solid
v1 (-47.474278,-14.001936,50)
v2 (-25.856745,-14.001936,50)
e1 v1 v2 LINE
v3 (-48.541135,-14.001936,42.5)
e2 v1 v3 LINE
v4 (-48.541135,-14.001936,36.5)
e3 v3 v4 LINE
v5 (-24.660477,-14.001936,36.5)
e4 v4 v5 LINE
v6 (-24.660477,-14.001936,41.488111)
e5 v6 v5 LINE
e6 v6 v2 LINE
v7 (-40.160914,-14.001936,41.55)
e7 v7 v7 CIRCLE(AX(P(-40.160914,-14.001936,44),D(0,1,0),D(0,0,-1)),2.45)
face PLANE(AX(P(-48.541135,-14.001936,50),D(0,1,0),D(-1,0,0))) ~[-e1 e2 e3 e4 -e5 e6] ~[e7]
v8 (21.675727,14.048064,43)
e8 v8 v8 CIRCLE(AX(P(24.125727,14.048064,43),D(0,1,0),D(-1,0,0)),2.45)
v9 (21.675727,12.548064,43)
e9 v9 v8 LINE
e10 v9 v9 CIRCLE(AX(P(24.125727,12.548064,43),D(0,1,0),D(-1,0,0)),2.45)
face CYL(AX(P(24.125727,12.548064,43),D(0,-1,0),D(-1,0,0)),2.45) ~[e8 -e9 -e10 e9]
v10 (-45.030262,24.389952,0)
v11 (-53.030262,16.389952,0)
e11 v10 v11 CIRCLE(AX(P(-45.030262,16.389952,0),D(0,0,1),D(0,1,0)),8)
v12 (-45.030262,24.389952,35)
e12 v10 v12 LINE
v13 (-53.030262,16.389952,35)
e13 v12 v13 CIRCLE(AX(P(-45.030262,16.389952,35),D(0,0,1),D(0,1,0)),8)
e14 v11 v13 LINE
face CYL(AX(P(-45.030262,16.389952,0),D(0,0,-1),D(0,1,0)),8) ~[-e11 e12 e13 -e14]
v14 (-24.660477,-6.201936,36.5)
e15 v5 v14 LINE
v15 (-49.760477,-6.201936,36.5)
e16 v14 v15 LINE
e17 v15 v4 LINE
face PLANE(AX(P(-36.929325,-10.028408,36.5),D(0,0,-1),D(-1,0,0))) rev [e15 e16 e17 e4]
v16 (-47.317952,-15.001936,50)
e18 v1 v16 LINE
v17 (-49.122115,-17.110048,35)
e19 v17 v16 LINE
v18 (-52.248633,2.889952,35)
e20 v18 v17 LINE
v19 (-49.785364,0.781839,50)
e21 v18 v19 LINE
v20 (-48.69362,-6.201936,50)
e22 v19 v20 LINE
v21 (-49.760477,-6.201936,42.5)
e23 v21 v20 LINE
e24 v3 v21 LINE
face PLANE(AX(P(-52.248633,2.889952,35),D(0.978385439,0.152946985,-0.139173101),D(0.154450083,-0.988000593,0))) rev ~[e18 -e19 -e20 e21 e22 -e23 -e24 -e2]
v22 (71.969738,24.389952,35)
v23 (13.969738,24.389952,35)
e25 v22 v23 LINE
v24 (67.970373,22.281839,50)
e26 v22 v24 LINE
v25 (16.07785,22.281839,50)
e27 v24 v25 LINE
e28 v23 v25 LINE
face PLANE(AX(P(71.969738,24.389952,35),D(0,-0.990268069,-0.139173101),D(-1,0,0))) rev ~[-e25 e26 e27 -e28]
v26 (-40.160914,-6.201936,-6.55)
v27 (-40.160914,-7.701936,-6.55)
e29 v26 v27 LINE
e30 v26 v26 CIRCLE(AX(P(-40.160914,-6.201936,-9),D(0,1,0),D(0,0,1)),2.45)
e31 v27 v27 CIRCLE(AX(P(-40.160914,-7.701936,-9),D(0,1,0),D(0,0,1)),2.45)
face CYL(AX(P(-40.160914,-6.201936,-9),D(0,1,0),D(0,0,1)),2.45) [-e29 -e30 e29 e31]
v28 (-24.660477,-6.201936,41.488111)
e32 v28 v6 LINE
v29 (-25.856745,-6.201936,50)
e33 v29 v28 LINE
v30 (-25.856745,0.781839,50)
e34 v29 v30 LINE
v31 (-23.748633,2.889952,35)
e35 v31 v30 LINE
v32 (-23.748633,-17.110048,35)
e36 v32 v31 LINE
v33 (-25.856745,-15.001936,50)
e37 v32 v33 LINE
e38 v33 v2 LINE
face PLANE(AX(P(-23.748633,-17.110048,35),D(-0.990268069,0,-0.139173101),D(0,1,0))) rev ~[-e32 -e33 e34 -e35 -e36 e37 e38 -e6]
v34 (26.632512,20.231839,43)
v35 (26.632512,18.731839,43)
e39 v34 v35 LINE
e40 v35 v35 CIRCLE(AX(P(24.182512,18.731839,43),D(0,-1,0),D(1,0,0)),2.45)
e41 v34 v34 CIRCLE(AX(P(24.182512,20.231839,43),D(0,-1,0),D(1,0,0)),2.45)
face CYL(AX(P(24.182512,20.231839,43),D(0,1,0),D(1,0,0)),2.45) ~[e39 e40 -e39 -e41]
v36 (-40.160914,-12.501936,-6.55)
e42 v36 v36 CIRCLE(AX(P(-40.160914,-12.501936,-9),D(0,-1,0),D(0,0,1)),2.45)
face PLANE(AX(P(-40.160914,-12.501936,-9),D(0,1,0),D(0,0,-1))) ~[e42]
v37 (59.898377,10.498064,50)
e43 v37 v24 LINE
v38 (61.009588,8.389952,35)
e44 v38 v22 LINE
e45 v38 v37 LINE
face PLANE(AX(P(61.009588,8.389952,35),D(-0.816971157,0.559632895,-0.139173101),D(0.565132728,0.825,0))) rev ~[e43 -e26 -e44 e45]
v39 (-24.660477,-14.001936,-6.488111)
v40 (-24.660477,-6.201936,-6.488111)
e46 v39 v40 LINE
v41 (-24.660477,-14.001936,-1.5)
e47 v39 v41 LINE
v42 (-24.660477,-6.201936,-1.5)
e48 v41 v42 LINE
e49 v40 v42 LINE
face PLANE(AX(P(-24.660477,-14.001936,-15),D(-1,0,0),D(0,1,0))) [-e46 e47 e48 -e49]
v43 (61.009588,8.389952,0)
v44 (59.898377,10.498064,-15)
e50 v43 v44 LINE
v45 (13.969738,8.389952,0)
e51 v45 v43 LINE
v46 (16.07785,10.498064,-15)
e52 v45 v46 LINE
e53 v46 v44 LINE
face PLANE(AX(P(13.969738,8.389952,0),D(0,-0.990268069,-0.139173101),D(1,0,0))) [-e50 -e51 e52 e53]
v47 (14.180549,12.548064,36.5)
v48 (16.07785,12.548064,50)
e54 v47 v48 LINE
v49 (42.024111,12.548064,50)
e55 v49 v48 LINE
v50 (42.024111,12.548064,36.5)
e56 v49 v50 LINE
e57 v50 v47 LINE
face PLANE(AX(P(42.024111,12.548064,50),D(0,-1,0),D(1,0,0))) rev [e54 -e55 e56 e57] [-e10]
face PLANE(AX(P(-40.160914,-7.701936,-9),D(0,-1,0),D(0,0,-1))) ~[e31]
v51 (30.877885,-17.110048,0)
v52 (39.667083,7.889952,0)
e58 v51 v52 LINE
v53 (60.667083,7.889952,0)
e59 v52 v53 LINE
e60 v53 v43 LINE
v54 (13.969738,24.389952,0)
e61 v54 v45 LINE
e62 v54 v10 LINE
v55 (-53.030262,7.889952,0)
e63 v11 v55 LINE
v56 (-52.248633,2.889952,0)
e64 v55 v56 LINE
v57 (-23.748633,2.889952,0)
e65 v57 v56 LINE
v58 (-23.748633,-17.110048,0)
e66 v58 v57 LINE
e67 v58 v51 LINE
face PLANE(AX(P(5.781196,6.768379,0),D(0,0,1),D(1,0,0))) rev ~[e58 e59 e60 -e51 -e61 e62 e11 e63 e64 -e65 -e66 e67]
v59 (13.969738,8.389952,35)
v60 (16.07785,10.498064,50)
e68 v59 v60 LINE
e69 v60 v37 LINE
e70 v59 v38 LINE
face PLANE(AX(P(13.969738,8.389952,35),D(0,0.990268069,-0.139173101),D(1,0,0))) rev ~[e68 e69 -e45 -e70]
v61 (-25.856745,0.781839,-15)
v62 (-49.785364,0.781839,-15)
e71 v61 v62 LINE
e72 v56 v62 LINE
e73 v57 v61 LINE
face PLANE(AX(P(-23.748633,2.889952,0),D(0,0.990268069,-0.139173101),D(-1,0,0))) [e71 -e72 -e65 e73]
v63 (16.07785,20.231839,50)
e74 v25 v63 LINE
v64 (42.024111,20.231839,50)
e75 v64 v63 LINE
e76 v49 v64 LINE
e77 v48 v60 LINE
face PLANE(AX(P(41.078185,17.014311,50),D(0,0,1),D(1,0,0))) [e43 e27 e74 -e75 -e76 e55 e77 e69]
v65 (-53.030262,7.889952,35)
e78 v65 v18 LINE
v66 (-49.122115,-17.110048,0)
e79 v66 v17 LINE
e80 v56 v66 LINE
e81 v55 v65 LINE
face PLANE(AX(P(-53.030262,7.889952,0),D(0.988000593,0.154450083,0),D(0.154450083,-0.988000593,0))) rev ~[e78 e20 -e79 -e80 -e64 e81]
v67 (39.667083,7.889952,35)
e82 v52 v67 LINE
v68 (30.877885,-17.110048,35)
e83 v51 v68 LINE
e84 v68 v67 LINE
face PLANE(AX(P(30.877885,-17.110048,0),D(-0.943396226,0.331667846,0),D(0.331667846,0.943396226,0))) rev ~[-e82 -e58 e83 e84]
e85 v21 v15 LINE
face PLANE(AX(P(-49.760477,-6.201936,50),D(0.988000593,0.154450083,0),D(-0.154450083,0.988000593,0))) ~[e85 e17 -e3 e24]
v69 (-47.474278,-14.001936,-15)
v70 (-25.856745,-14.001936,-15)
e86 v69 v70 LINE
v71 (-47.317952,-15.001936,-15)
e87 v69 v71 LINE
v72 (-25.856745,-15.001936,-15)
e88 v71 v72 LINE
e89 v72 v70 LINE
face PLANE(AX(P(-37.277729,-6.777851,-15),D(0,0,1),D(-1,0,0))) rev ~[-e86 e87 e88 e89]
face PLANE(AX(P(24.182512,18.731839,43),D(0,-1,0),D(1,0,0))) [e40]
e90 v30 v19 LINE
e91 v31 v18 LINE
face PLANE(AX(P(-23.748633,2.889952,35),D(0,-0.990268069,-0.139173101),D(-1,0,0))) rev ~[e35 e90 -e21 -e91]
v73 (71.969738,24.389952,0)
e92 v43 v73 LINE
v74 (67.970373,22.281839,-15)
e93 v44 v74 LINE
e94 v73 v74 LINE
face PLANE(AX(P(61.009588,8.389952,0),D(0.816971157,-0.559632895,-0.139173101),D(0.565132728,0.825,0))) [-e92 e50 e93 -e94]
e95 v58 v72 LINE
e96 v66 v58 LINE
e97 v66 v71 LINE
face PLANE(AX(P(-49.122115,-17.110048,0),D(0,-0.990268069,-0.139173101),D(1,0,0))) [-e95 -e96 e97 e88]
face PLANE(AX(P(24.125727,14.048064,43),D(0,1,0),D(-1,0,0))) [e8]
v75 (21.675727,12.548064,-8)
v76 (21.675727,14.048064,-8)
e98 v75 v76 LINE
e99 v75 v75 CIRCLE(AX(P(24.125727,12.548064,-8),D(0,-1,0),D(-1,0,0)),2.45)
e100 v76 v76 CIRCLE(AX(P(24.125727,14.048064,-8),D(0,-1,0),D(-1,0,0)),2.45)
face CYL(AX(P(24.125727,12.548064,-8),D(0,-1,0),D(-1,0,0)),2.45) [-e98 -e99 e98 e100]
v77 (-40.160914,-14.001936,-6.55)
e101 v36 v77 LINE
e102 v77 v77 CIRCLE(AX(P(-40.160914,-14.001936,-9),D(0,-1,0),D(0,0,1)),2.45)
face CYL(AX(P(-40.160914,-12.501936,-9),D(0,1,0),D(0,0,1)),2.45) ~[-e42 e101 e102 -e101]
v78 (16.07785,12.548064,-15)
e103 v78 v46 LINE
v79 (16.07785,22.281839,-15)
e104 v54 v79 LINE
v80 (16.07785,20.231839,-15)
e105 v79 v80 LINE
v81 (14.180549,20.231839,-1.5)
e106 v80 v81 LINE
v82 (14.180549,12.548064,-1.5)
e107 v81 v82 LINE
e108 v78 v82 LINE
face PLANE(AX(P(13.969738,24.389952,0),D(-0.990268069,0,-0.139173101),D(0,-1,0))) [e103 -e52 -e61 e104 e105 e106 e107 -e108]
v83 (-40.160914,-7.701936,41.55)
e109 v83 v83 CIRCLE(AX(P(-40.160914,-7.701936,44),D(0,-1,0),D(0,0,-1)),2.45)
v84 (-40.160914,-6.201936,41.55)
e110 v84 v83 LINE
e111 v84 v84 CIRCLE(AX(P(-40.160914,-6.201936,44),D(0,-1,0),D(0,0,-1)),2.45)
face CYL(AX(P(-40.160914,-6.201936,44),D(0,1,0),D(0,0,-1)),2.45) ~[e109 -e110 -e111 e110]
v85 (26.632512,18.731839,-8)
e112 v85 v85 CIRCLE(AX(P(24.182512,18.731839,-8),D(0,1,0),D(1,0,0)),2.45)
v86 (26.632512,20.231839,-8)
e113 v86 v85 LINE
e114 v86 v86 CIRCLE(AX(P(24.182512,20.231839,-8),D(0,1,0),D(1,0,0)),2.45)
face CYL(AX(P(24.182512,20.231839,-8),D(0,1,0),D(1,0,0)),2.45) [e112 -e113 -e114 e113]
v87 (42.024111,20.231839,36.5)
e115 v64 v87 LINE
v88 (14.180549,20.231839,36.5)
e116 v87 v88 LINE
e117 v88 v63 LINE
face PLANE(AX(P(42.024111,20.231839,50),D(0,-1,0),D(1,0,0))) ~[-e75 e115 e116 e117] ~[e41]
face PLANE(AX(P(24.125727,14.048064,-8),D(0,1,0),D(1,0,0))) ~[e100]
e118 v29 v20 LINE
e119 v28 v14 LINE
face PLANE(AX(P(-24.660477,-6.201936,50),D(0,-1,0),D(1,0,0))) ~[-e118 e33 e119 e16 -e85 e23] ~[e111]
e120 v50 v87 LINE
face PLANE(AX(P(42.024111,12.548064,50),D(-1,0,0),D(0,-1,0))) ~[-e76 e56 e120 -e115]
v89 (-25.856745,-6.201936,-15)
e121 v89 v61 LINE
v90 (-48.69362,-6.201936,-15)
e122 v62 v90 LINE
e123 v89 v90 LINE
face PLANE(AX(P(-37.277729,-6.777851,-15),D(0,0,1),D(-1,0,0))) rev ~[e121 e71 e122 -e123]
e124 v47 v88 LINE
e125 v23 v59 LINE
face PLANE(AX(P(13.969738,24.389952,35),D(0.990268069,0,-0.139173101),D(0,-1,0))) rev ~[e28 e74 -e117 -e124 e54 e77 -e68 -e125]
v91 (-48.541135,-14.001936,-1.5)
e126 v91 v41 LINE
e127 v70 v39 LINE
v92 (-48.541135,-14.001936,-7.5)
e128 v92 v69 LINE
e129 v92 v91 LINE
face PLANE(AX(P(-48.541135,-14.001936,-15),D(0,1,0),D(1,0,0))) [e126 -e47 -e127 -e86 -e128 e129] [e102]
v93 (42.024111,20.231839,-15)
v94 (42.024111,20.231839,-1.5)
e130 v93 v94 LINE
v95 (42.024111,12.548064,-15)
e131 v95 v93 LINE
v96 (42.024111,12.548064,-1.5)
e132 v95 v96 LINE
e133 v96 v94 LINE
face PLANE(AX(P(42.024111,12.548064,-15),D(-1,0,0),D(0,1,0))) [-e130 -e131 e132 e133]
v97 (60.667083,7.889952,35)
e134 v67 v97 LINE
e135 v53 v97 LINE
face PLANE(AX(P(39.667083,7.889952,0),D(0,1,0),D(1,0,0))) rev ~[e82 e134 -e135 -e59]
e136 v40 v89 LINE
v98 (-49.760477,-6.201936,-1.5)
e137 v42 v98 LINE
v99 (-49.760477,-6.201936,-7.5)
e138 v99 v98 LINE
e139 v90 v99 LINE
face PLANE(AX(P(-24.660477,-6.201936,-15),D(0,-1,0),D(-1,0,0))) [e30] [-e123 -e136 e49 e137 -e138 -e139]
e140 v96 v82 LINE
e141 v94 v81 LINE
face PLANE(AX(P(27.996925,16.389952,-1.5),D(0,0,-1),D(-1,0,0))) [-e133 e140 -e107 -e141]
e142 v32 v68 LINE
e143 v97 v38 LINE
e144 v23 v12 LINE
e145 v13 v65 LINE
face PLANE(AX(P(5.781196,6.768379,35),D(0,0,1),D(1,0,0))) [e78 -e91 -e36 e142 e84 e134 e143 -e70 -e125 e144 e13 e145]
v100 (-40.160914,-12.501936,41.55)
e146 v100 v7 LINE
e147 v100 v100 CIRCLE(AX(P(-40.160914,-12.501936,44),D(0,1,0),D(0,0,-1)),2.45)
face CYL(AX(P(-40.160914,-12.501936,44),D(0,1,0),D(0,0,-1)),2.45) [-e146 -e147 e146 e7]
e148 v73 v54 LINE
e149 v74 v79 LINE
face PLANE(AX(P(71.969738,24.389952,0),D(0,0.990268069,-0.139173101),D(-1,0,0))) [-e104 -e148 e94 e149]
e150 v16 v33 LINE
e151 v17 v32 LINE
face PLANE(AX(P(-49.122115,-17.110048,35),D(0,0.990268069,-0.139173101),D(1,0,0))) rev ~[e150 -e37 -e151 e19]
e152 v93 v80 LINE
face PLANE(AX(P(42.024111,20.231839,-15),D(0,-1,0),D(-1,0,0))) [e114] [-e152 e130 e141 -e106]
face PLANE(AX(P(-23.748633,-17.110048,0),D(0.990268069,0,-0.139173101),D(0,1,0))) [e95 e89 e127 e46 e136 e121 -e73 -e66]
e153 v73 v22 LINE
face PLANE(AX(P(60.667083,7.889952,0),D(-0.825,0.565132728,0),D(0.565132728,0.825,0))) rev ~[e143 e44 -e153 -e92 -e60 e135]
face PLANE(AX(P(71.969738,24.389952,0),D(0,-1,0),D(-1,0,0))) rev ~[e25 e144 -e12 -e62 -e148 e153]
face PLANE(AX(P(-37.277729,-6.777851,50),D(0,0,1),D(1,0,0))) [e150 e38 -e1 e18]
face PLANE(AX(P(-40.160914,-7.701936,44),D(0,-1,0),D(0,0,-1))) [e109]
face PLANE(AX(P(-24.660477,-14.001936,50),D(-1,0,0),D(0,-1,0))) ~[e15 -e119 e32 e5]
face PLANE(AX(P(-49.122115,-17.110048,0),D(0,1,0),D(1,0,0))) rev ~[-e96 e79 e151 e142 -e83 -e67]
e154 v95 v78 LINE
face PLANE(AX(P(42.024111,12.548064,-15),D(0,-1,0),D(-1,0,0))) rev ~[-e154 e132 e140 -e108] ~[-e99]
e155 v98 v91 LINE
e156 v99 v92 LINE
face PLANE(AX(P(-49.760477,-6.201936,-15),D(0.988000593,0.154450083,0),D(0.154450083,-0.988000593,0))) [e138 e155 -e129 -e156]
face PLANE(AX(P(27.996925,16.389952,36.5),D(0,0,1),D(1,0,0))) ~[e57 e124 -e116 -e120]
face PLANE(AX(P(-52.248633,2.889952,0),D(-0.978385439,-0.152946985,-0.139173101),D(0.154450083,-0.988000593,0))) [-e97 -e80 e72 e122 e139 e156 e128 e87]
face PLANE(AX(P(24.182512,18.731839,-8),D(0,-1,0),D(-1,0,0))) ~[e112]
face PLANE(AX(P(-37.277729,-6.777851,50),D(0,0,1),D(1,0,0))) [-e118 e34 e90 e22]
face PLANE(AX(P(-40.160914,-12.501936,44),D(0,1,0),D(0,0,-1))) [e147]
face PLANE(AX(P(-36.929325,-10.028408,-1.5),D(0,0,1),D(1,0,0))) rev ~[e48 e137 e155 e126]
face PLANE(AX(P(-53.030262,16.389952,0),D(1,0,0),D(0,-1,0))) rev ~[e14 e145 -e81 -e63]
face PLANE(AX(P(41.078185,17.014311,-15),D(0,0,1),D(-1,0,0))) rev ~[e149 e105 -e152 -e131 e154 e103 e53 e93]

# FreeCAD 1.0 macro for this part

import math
import FreeCAD as App
import Part
import Sketcher

V = App.Vector


def faces_at(feature, points):
    """Names of the faces that lie closest to the given points."""
    faces = feature.Shape.Faces
    near = lambda p: min(range(len(faces)), key=lambda i: faces[i].distToShape(Part.Vertex(*p))[0])
    return sorted({f"Face{near(p) + 1}" for p in points})

doc = App.newDocument("Part")
params = doc.addObject("Spreadsheet::Sheet", "Params")
for row, (alias, value) in enumerate([
    ("sketch1_radius", "8 mm"),
    ("sketch1_width", "21 mm"),
    ("sketch1_width2", "117 mm"),
    ("sketch1_width3", "80 mm"),
    ("sketch1_length", "20 mm"),
    ("pad1_length", "35 mm"),
    ("sketch2_height", "20 mm"),
    ("sketch2_width", "28.5 mm"),
    ("pad2_length", "15 mm"),
    ("draft_angle", "8 deg"),
    ("sketch3_width", "58 mm"),
    ("sketch3_height", "16 mm"),
    ("pad3_length", "15 mm"),
    ("draft2_angle", "8 deg"),
    ("sketch4_height", "20 mm"),
    ("sketch4_width", "28.5 mm"),
    ("pad4_length", "15 mm"),
    ("draft3_angle", "8 deg"),
    ("sketch5_width", "58 mm"),
    ("sketch5_height", "16 mm"),
    ("pad5_length", "15 mm"),
    ("draft4_angle", "8 deg"),
    ("sketch6_width", "58 mm"),
    ("sketch6_height", "16 mm"),
    ("pad6_length", "15 mm"),
    ("draft5_angle", "8 deg"),
    ("sketch7_width", "25.1 mm"),
    ("sketch7_height", "7.8 mm"),
    ("pocket1_length", "13.5 mm"),
    ("sketch8_diameter", "4.9 mm"),
    ("pad7_length", "1.5 mm"),
    ("sketch9_diameter", "4.9 mm"),
    ("pad8_length", "1.5 mm"),
    ("sketch10_diameter", "4.9 mm"),
    ("pad9_length", "1.5 mm"),
    ("sketch11_diameter", "4.9 mm"),
    ("pad10_length", "1.5 mm"),
], start=1):
    params.set(f"A{row}", alias)
    params.set(f"B{row}", "=" + value)
    params.setAlias(f"B{row}", alias)

body = doc.addObject("PartDesign::Body", "Body")

sketch1 = body.newObject("Sketcher::SketchObject", "Sketch")
sketch1.AttachmentSupport = (doc.getObject("XY_Plane"), [""])
sketch1.MapMode = "FlatFace"
sketch1.addGeometry([
    Part.LineSegment(V(31, -17, 0), V(40, 8, 0)),
    Part.LineSegment(V(40, 8, 0), V(61, 8, 0)),
    Part.LineSegment(V(61, 8, 0), V(72, 24, 0)),
    Part.LineSegment(V(72, 24, 0), V(-45, 24, 0)),
    Part.ArcOfCircle(Part.Circle(V(-45, 16, 0), V(0, 0, 1), 8), math.radians(90), math.radians(180)),
    Part.LineSegment(V(-53, 16, 0), V(-53, 8, 0)),
    Part.LineSegment(V(-53, 8, 0), V(-49, -17, 0)),
    Part.LineSegment(V(-49, -17, 0), V(31, -17, 0)),
], False)
sketch1.addConstraint([
    Sketcher.Constraint("Coincident", 0, 2, 1, 1),
    Sketcher.Constraint("Coincident", 1, 2, 2, 1),
    Sketcher.Constraint("Coincident", 2, 2, 3, 1),
    Sketcher.Constraint("Tangent", 3, 2, 4, 1),
    Sketcher.Constraint("Tangent", 4, 2, 5, 1),
    Sketcher.Constraint("Coincident", 5, 2, 6, 1),
    Sketcher.Constraint("Coincident", 6, 2, 7, 1),
    Sketcher.Constraint("Coincident", 7, 2, 0, 1),
    Sketcher.Constraint("Horizontal", 1),
    Sketcher.Constraint("Horizontal", 3),
    Sketcher.Constraint("Vertical", 5),
    Sketcher.Constraint("Horizontal", 7),
    Sketcher.Constraint("Horizontal", 1, 2, 5, 2),
    Sketcher.Constraint("Radius", 4, 8.0),
    Sketcher.Constraint("DistanceX", 1, 1, 1, 2, 21.0),
    Sketcher.Constraint("DistanceX", 3, 2, 3, 1, 117.0),
    Sketcher.Constraint("DistanceX", 7, 1, 7, 2, 80.0),
    Sketcher.Constraint("Distance", 2, 20.0),
    Sketcher.Constraint("DistanceY", 5, 2, 5, 1, 8.5),
    Sketcher.Constraint("DistanceY", 6, 2, 5, 2, 25.0),
    Sketcher.Constraint("Distance", 0, 26.5),
    Sketcher.Constraint("DistanceY", -1, 1, 4, 3, 16.389952),
    Sketcher.Constraint("DistanceX", 4, 3, -1, 1, 45.030262),
])
sketch1.setExpression("Constraints[13]", "Params.sketch1_radius")
sketch1.setExpression("Constraints[14]", "Params.sketch1_width")
sketch1.setExpression("Constraints[15]", "Params.sketch1_width2")
sketch1.setExpression("Constraints[16]", "Params.sketch1_width3")
sketch1.setExpression("Constraints[17]", "Params.sketch1_length")
pad1 = body.newObject("PartDesign::Pad", "Pad")
pad1.Profile = sketch1
pad1.setExpression("Length", "Params.pad1_length")
body2 = doc.addObject("PartDesign::Body", "Body001")

sketch2 = body2.newObject("Sketcher::SketchObject", "Sketch001")
sketch2.AttachmentSupport = (doc.getObject("XY_Plane001"), [""])
sketch2.MapMode = "FlatFace"
sketch2.AttachmentOffset = App.Placement(V(0, 0, 35), App.Rotation())
sketch2.addGeometry([
    Part.LineSegment(V(-49, -17, 0), V(-24, -17, 0)),
    Part.LineSegment(V(-24, -17, 0), V(-24, 3, 0)),
    Part.LineSegment(V(-24, 3, 0), V(-52, 3, 0)),
    Part.LineSegment(V(-52, 3, 0), V(-49, -17, 0)),
], False)
sketch2.addConstraint([
    Sketcher.Constraint("Coincident", 0, 2, 1, 1),
    Sketcher.Constraint("Coincident", 1, 2, 2, 1),
    Sketcher.Constraint("Coincident", 2, 2, 3, 1),
    Sketcher.Constraint("Coincident", 3, 2, 0, 1),
    Sketcher.Constraint("Horizontal", 0),
    Sketcher.Constraint("Vertical", 1),
    Sketcher.Constraint("Horizontal", 2),
    Sketcher.Constraint("DistanceY", 1, 1, 1, 2, 20.0),
    Sketcher.Constraint("DistanceX", 2, 2, 2, 1, 28.5),
    Sketcher.Constraint("DistanceX", 0, 1, 0, 2, 25.373482),
    Sketcher.Constraint("DistanceY", 0, 2, -1, 1, 17.110048),
    Sketcher.Constraint("DistanceX", 0, 2, -1, 1, 23.748633),
])
sketch2.setExpression("Constraints[7]", "Params.sketch2_height")
sketch2.setExpression("Constraints[8]", "Params.sketch2_width")
pad2 = body2.newObject("PartDesign::Pad", "Pad001")
pad2.Profile = sketch2
pad2.setExpression("Length", "Params.pad2_length")
doc.recompute()

datumplane = body2.newObject("PartDesign::Plane", "DatumPlane")
datumplane.AttachmentSupport = (doc.getObject("XY_Plane001"), [""])
datumplane.MapMode = "FlatFace"
datumplane.AttachmentOffset = App.Placement(V(0, 0, 35), App.Rotation())
draft = body2.newObject("PartDesign::Draft", "Draft")
draft.Base = (pad2, faces_at(pad2, [
    (-36.435, -17.11, 42.5),
    (-23.749, -7.11, 42.5),
    (-37.999, 2.89, 42.5),
    (-50.685, -7.11, 42.5),
]))
draft.NeutralPlane = (datumplane, [""])
draft.setExpression("Angle", "Params.draft_angle")
draft.Reversed = False
doc.recompute()

boolean = body.newObject("PartDesign::Boolean", "Boolean")
boolean.Type = "Fuse"
boolean.addObjects([body2])
body3 = doc.addObject("PartDesign::Body", "Body002")

sketch3 = body3.newObject("Sketcher::SketchObject", "Sketch002")
sketch3.AttachmentSupport = (doc.getObject("XY_Plane002"), [""])
sketch3.MapMode = "FlatFace"
sketch3.AttachmentOffset = App.Placement(V(0, 0, 35), App.Rotation())
sketch3.addGeometry([
    Part.LineSegment(V(72, 24, 0), V(14, 24, 0)),
    Part.LineSegment(V(14, 24, 0), V(14, 8, 0)),
    Part.LineSegment(V(14, 8, 0), V(61, 8, 0)),
    Part.LineSegment(V(61, 8, 0), V(72, 24, 0)),
], False)
sketch3.addConstraint([
    Sketcher.Constraint("Coincident", 0, 2, 1, 1),
    Sketcher.Constraint("Coincident", 1, 2, 2, 1),
    Sketcher.Constraint("Coincident", 2, 2, 3, 1),
    Sketcher.Constraint("Coincident", 3, 2, 0, 1),
    Sketcher.Constraint("Horizontal", 0),
    Sketcher.Constraint("Vertical", 1),
    Sketcher.Constraint("Horizontal", 2),
    Sketcher.Constraint("DistanceX", 0, 2, 0, 1, 58.0),
    Sketcher.Constraint("DistanceY", 1, 2, 1, 1, 16.0),
    Sketcher.Constraint("DistanceX", 2, 1, 2, 2, 47.03985),
    Sketcher.Constraint("DistanceY", -1, 1, 0, 2, 24.389952),
    Sketcher.Constraint("DistanceX", -1, 1, 0, 2, 13.969738),
])
sketch3.setExpression("Constraints[7]", "Params.sketch3_width")
sketch3.setExpression("Constraints[8]", "Params.sketch3_height")
pad3 = body3.newObject("PartDesign::Pad", "Pad002")
pad3.Profile = sketch3
pad3.setExpression("Length", "Params.pad3_length")
doc.recompute()

datumplane2 = body3.newObject("PartDesign::Plane", "DatumPlane001")
datumplane2.AttachmentSupport = (doc.getObject("XY_Plane002"), [""])
datumplane2.MapMode = "FlatFace"
datumplane2.AttachmentOffset = App.Placement(V(0, 0, 35), App.Rotation())
draft2 = body3.newObject("PartDesign::Draft", "Draft001")
draft2.Base = (pad3, faces_at(pad3, [
    (42.97, 24.39, 42.5),
    (13.97, 16.39, 42.5),
    (37.49, 8.39, 42.5),
    (66.49, 16.39, 42.5),
]))
draft2.NeutralPlane = (datumplane2, [""])
draft2.setExpression("Angle", "Params.draft2_angle")
draft2.Reversed = False
doc.recompute()

boolean2 = body.newObject("PartDesign::Boolean", "Boolean001")
boolean2.Type = "Fuse"
boolean2.addObjects([body3])
body4 = doc.addObject("PartDesign::Body", "Body003")

sketch4 = body4.newObject("Sketcher::SketchObject", "Sketch003")
sketch4.AttachmentSupport = (doc.getObject("XY_Plane003"), [""])
sketch4.MapMode = "FlatFace"
sketch4.addGeometry([
    Part.LineSegment(V(-24, -17, 0), V(-49, -17, 0)),
    Part.LineSegment(V(-49, -17, 0), V(-52, 3, 0)),
    Part.LineSegment(V(-52, 3, 0), V(-24, 3, 0)),
    Part.LineSegment(V(-24, 3, 0), V(-24, -17, 0)),
], False)
sketch4.addConstraint([
    Sketcher.Constraint("Coincident", 0, 2, 1, 1),
    Sketcher.Constraint("Coincident", 1, 2, 2, 1),
    Sketcher.Constraint("Coincident", 2, 2, 3, 1),
    Sketcher.Constraint("Coincident", 3, 2, 0, 1),
    Sketcher.Constraint("Horizontal", 0),
    Sketcher.Constraint("Horizontal", 2),
    Sketcher.Constraint("Vertical", 3),
    Sketcher.Constraint("DistanceY", 3, 2, 3, 1, 20.0),
    Sketcher.Constraint("DistanceX", 2, 1, 2, 2, 28.5),
    Sketcher.Constraint("DistanceX", 0, 2, 0, 1, 25.373482),
    Sketcher.Constraint("DistanceY", 0, 2, -1, 1, 17.110048),
    Sketcher.Constraint("DistanceX", 0, 2, -1, 1, 49.122115),
])
sketch4.setExpression("Constraints[7]", "Params.sketch4_height")
sketch4.setExpression("Constraints[8]", "Params.sketch4_width")
pad4 = body4.newObject("PartDesign::Pad", "Pad003")
pad4.Profile = sketch4
pad4.setExpression("Length", "Params.pad4_length")
pad4.Reversed = True
doc.recompute()

draft3 = body4.newObject("PartDesign::Draft", "Draft002")
draft3.Base = (pad4, faces_at(pad4, [
    (-36.435, -17.11, -7.5),
    (-23.749, -7.11, -7.5),
    (-37.999, 2.89, -7.5),
    (-50.685, -7.11, -7.5),
]))
draft3.NeutralPlane = (doc.getObject("XY_Plane003"), [""])
draft3.setExpression("Angle", "Params.draft3_angle")
draft3.Reversed = True
doc.recompute()

boolean3 = body.newObject("PartDesign::Boolean", "Boolean002")
boolean3.Type = "Fuse"
boolean3.addObjects([body4])
body5 = doc.addObject("PartDesign::Body", "Body004")

sketch5 = body5.newObject("Sketcher::SketchObject", "Sketch004")
sketch5.AttachmentSupport = (doc.getObject("XY_Plane004"), [""])
sketch5.MapMode = "FlatFace"
sketch5.addGeometry([
    Part.LineSegment(V(14, 24, 0), V(72, 24, 0)),
    Part.LineSegment(V(72, 24, 0), V(61, 8, 0)),
    Part.LineSegment(V(61, 8, 0), V(14, 8, 0)),
    Part.LineSegment(V(14, 8, 0), V(14, 24, 0)),
], False)
sketch5.addConstraint([
    Sketcher.Constraint("Coincident", 0, 2, 1, 1),
    Sketcher.Constraint("Coincident", 1, 2, 2, 1),
    Sketcher.Constraint("Coincident", 2, 2, 3, 1),
    Sketcher.Constraint("Coincident", 3, 2, 0, 1),
    Sketcher.Constraint("Horizontal", 0),
    Sketcher.Constraint("Horizontal", 2),
    Sketcher.Constraint("Vertical", 3),
    Sketcher.Constraint("DistanceX", 0, 1, 0, 2, 58.0),
    Sketcher.Constraint("DistanceY", 3, 1, 3, 2, 16.0),
    Sketcher.Constraint("DistanceX", 2, 2, 2, 1, 47.03985),
    Sketcher.Constraint("DistanceY", -1, 1, 0, 2, 24.389952),
    Sketcher.Constraint("DistanceX", -1, 1, 0, 2, 71.969738),
])
sketch5.setExpression("Constraints[7]", "Params.sketch5_width")
sketch5.setExpression("Constraints[8]", "Params.sketch5_height")
pad5 = body5.newObject("PartDesign::Pad", "Pad004")
pad5.Profile = sketch5
pad5.setExpression("Length", "Params.pad5_length")
pad5.Reversed = True
doc.recompute()

draft4 = body5.newObject("PartDesign::Draft", "Draft003")
draft4.Base = (pad5, faces_at(pad5, [
    (42.97, 24.39, -7.5),
    (13.97, 16.39, -7.5),
    (37.49, 8.39, -7.5),
    (66.49, 16.39, -7.5),
]))
draft4.NeutralPlane = (doc.getObject("XY_Plane004"), [""])
draft4.setExpression("Angle", "Params.draft4_angle")
draft4.Reversed = True
doc.recompute()

boolean4 = body.newObject("PartDesign::Boolean", "Boolean003")
boolean4.Type = "Fuse"
boolean4.addObjects([body5])
body6 = doc.addObject("PartDesign::Body", "Body005")

sketch6 = body6.newObject("Sketcher::SketchObject", "Sketch005")
sketch6.AttachmentSupport = (doc.getObject("XY_Plane005"), [""])
sketch6.MapMode = "FlatFace"
sketch6.addGeometry([
    Part.LineSegment(V(14, 24, 0), V(72, 24, 0)),
    Part.LineSegment(V(72, 24, 0), V(61, 8, 0)),
    Part.LineSegment(V(61, 8, 0), V(14, 8, 0)),
    Part.LineSegment(V(14, 8, 0), V(14, 24, 0)),
], False)
sketch6.addConstraint([
    Sketcher.Constraint("Coincident", 0, 2, 1, 1),
    Sketcher.Constraint("Coincident", 1, 2, 2, 1),
    Sketcher.Constraint("Coincident", 2, 2, 3, 1),
    Sketcher.Constraint("Coincident", 3, 2, 0, 1),
    Sketcher.Constraint("Horizontal", 0),
    Sketcher.Constraint("Horizontal", 2),
    Sketcher.Constraint("Vertical", 3),
    Sketcher.Constraint("DistanceX", 0, 1, 0, 2, 58.0),
    Sketcher.Constraint("DistanceY", 3, 1, 3, 2, 16.0),
    Sketcher.Constraint("DistanceX", 2, 2, 2, 1, 47.03985),
    Sketcher.Constraint("DistanceY", -1, 1, 0, 2, 24.389952),
    Sketcher.Constraint("DistanceX", -1, 1, 0, 2, 71.969738),
])
sketch6.setExpression("Constraints[7]", "Params.sketch6_width")
sketch6.setExpression("Constraints[8]", "Params.sketch6_height")
pad6 = body6.newObject("PartDesign::Pad", "Pad005")
pad6.Profile = sketch6
pad6.setExpression("Length", "Params.pad6_length")
pad6.Reversed = True
doc.recompute()

draft5 = body6.newObject("PartDesign::Draft", "Draft004")
draft5.Base = (pad6, faces_at(pad6, [
    (42.97, 24.39, -7.5),
    (13.97, 16.39, -7.5),
    (37.49, 8.39, -7.5),
    (66.49, 16.39, -7.5),
]))
draft5.NeutralPlane = (doc.getObject("XY_Plane005"), [""])
draft5.setExpression("Angle", "Params.draft5_angle")
draft5.Reversed = True
doc.recompute()

boolean5 = body.newObject("PartDesign::Boolean", "Boolean004")
boolean5.Type = "Fuse"
boolean5.addObjects([body6])

sketch7 = body.newObject("Sketcher::SketchObject", "Sketch006")
sketch7.AttachmentSupport = (doc.getObject("XY_Plane"), [""])
sketch7.MapMode = "FlatFace"
sketch7.AttachmentOffset = App.Placement(V(0, 0, -15), App.Rotation())
sketch7.addGeometry([
    Part.LineSegment(V(42, 20, 0), V(42, 13, 0)),
    Part.LineSegment(V(42, 13, 0), V(14, 13, 0)),
    Part.LineSegment(V(14, 13, 0), V(14, 20, 0)),
    Part.LineSegment(V(14, 20, 0), V(42, 20, 0)),
    Part.LineSegment(V(-50, -6, 0), V(-25, -6, 0)),
    Part.LineSegment(V(-25, -6, 0), V(-25, -14, 0)),
    Part.LineSegment(V(-25, -14, 0), V(-49, -14, 0)),
    Part.LineSegment(V(-49, -14, 0), V(-50, -6, 0)),
], False)
sketch7.addConstraint([
    Sketcher.Constraint("Coincident", 0, 2, 1, 1),
    Sketcher.Constraint("Coincident", 1, 2, 2, 1),
    Sketcher.Constraint("Coincident", 2, 2, 3, 1),
    Sketcher.Constraint("Coincident", 3, 2, 0, 1),
    Sketcher.Constraint("Coincident", 4, 2, 5, 1),
    Sketcher.Constraint("Coincident", 5, 2, 6, 1),
    Sketcher.Constraint("Coincident", 6, 2, 7, 1),
    Sketcher.Constraint("Coincident", 7, 2, 4, 1),
    Sketcher.Constraint("Vertical", 0),
    Sketcher.Constraint("Horizontal", 1),
    Sketcher.Constraint("Vertical", 2),
    Sketcher.Constraint("Horizontal", 3),
    Sketcher.Constraint("Horizontal", 4),
    Sketcher.Constraint("Vertical", 5),
    Sketcher.Constraint("Horizontal", 6),
    Sketcher.Constraint("DistanceX", 4, 1, 4, 2, 25.1),
    Sketcher.Constraint("DistanceY", 5, 2, 5, 1, 7.8),
    Sketcher.Constraint("DistanceY", 4, 2, 1, 2, 18.75),
    Sketcher.Constraint("DistanceX", 1, 2, 1, 1, 28.054374),
    Sketcher.Constraint("DistanceX", 6, 2, 6, 1, 23.880658),
    Sketcher.Constraint("DistanceY", 0, 2, 0, 1, 7.683775),
    Sketcher.Constraint("DistanceX", -1, 1, 0, 2, 42.024111),
    Sketcher.Constraint("DistanceY", -1, 1, 2, 2, 20.231839),
    Sketcher.Constraint("DistanceX", 4, 2, 0, 2, 66.684589),
])
sketch7.setExpression("Constraints[15]", "Params.sketch7_width")
sketch7.setExpression("Constraints[16]", "Params.sketch7_height")
pocket1 = body.newObject("PartDesign::Pocket", "Pocket")
pocket1.Profile = sketch7
pocket1.setExpression("Length", "Params.pocket1_length")
pocket1.Reversed = True
doc.recompute()

datumplane3 = body.newObject("PartDesign::Plane", "DatumPlane002")
datumplane3.AttachmentSupport = (doc.getObject("XY_Plane"), [""])
datumplane3.MapMode = "FlatFace"
datumplane3.AttachmentOffset = App.Placement(V(0, 0, 17.5), App.Rotation())
mirrored = body.newObject("PartDesign::Mirrored", "Mirrored")
mirrored.Originals = [pocket1]
mirrored.MirrorPlane = (datumplane3, [""])
body.Tip = mirrored

sketch8 = body.newObject("Sketcher::SketchObject", "Sketch007")
sketch8.AttachmentSupport = (doc.getObject("XZ_Plane"), [""])
sketch8.MapMode = "FlatFace"
sketch8.AttachmentOffset = App.Placement(V(0, 0, -20.231839), App.Rotation())
sketch8.addGeometry(Part.Circle(V(24.2, 43, 0), V(0, 0, 1), 2.5), False)
sketch8.addConstraint([
    Sketcher.Constraint("Diameter", 0, 4.9),
    Sketcher.Constraint("DistanceY", -1, 1, 0, 3, 43.0),
    Sketcher.Constraint("DistanceX", -1, 1, 0, 3, 24.182512),
])
sketch8.setExpression("Constraints[0]", "Params.sketch8_diameter")
pad7 = body.newObject("PartDesign::Pad", "Pad006")
pad7.Profile = sketch8
pad7.setExpression("Length", "Params.pad7_length")
doc.recompute()

datumplane4 = body.newObject("PartDesign::Plane", "DatumPlane003")
datumplane4.AttachmentSupport = (doc.getObject("XY_Plane"), [""])
datumplane4.MapMode = "FlatFace"
datumplane4.AttachmentOffset = App.Placement(V(0, 0, 17.5), App.Rotation())
mirrored2 = body.newObject("PartDesign::Mirrored", "Mirrored001")
mirrored2.Originals = [pad7]
mirrored2.MirrorPlane = (datumplane4, [""])
body.Tip = mirrored2

sketch9 = body.newObject("Sketcher::SketchObject", "Sketch008")
sketch9.AttachmentSupport = (doc.getObject("XZ_Plane"), [""])
sketch9.MapMode = "FlatFace"
sketch9.AttachmentOffset = App.Placement(V(0, 0, -12.548064), App.Rotation())
sketch9.addGeometry(Part.Circle(V(24.1, 43, 0), V(0, 0, 1), 2.5), False)
sketch9.addConstraint([
    Sketcher.Constraint("Diameter", 0, 4.9),
    Sketcher.Constraint("DistanceY", -1, 1, 0, 3, 43.0),
    Sketcher.Constraint("DistanceX", -1, 1, 0, 3, 24.125727),
])
sketch9.setExpression("Constraints[0]", "Params.sketch9_diameter")
pad8 = body.newObject("PartDesign::Pad", "Pad007")
pad8.Profile = sketch9
pad8.setExpression("Length", "Params.pad8_length")
pad8.Reversed = True
doc.recompute()

datumplane5 = body.newObject("PartDesign::Plane", "DatumPlane004")
datumplane5.AttachmentSupport = (doc.getObject("XY_Plane"), [""])
datumplane5.MapMode = "FlatFace"
datumplane5.AttachmentOffset = App.Placement(V(0, 0, 17.5), App.Rotation())
mirrored3 = body.newObject("PartDesign::Mirrored", "Mirrored002")
mirrored3.Originals = [pad8]
mirrored3.MirrorPlane = (datumplane5, [""])
body.Tip = mirrored3

sketch10 = body.newObject("Sketcher::SketchObject", "Sketch009")
sketch10.AttachmentSupport = (doc.getObject("XZ_Plane"), [""])
sketch10.MapMode = "FlatFace"
sketch10.AttachmentOffset = App.Placement(V(0, 0, 6.201936), App.Rotation())
sketch10.addGeometry(Part.Circle(V(-40.2, 44, 0), V(0, 0, 1), 2.5), False)
sketch10.addConstraint([
    Sketcher.Constraint("Diameter", 0, 4.9),
    Sketcher.Constraint("DistanceY", -1, 1, 0, 3, 44.0),
    Sketcher.Constraint("DistanceX", 0, 3, -1, 1, 40.160914),
])
sketch10.setExpression("Constraints[0]", "Params.sketch10_diameter")
pad9 = body.newObject("PartDesign::Pad", "Pad008")
pad9.Profile = sketch10
pad9.setExpression("Length", "Params.pad9_length")
doc.recompute()

datumplane6 = body.newObject("PartDesign::Plane", "DatumPlane005")
datumplane6.AttachmentSupport = (doc.getObject("XY_Plane"), [""])
datumplane6.MapMode = "FlatFace"
datumplane6.AttachmentOffset = App.Placement(V(0, 0, 17.5), App.Rotation())
mirrored4 = body.newObject("PartDesign::Mirrored", "Mirrored003")
mirrored4.Originals = [pad9]
mirrored4.MirrorPlane = (datumplane6, [""])
body.Tip = mirrored4

sketch11 = body.newObject("Sketcher::SketchObject", "Sketch010")
sketch11.AttachmentSupport = (doc.getObject("XZ_Plane"), [""])
sketch11.MapMode = "FlatFace"
sketch11.AttachmentOffset = App.Placement(V(0, 0, 12.501936), App.Rotation())
sketch11.addGeometry(Part.Circle(V(-40.2, 44, 0), V(0, 0, 1), 2.5), False)
sketch11.addConstraint([
    Sketcher.Constraint("Diameter", 0, 4.9),
    Sketcher.Constraint("DistanceY", -1, 1, 0, 3, 44.0),
    Sketcher.Constraint("DistanceX", 0, 3, -1, 1, 40.160914),
])
sketch11.setExpression("Constraints[0]", "Params.sketch11_diameter")
pad10 = body.newObject("PartDesign::Pad", "Pad009")
pad10.Profile = sketch11
pad10.setExpression("Length", "Params.pad10_length")
doc.recompute()

datumplane7 = body.newObject("PartDesign::Plane", "DatumPlane006")
datumplane7.AttachmentSupport = (doc.getObject("XY_Plane"), [""])
datumplane7.MapMode = "FlatFace"
datumplane7.AttachmentOffset = App.Placement(V(0, 0, 17.5), App.Rotation())
mirrored5 = body.newObject("PartDesign::Mirrored", "Mirrored004")
mirrored5.Originals = [pad10]
mirrored5.MirrorPlane = (datumplane7, [""])
body.Tip = mirrored5

doc.recompute()
